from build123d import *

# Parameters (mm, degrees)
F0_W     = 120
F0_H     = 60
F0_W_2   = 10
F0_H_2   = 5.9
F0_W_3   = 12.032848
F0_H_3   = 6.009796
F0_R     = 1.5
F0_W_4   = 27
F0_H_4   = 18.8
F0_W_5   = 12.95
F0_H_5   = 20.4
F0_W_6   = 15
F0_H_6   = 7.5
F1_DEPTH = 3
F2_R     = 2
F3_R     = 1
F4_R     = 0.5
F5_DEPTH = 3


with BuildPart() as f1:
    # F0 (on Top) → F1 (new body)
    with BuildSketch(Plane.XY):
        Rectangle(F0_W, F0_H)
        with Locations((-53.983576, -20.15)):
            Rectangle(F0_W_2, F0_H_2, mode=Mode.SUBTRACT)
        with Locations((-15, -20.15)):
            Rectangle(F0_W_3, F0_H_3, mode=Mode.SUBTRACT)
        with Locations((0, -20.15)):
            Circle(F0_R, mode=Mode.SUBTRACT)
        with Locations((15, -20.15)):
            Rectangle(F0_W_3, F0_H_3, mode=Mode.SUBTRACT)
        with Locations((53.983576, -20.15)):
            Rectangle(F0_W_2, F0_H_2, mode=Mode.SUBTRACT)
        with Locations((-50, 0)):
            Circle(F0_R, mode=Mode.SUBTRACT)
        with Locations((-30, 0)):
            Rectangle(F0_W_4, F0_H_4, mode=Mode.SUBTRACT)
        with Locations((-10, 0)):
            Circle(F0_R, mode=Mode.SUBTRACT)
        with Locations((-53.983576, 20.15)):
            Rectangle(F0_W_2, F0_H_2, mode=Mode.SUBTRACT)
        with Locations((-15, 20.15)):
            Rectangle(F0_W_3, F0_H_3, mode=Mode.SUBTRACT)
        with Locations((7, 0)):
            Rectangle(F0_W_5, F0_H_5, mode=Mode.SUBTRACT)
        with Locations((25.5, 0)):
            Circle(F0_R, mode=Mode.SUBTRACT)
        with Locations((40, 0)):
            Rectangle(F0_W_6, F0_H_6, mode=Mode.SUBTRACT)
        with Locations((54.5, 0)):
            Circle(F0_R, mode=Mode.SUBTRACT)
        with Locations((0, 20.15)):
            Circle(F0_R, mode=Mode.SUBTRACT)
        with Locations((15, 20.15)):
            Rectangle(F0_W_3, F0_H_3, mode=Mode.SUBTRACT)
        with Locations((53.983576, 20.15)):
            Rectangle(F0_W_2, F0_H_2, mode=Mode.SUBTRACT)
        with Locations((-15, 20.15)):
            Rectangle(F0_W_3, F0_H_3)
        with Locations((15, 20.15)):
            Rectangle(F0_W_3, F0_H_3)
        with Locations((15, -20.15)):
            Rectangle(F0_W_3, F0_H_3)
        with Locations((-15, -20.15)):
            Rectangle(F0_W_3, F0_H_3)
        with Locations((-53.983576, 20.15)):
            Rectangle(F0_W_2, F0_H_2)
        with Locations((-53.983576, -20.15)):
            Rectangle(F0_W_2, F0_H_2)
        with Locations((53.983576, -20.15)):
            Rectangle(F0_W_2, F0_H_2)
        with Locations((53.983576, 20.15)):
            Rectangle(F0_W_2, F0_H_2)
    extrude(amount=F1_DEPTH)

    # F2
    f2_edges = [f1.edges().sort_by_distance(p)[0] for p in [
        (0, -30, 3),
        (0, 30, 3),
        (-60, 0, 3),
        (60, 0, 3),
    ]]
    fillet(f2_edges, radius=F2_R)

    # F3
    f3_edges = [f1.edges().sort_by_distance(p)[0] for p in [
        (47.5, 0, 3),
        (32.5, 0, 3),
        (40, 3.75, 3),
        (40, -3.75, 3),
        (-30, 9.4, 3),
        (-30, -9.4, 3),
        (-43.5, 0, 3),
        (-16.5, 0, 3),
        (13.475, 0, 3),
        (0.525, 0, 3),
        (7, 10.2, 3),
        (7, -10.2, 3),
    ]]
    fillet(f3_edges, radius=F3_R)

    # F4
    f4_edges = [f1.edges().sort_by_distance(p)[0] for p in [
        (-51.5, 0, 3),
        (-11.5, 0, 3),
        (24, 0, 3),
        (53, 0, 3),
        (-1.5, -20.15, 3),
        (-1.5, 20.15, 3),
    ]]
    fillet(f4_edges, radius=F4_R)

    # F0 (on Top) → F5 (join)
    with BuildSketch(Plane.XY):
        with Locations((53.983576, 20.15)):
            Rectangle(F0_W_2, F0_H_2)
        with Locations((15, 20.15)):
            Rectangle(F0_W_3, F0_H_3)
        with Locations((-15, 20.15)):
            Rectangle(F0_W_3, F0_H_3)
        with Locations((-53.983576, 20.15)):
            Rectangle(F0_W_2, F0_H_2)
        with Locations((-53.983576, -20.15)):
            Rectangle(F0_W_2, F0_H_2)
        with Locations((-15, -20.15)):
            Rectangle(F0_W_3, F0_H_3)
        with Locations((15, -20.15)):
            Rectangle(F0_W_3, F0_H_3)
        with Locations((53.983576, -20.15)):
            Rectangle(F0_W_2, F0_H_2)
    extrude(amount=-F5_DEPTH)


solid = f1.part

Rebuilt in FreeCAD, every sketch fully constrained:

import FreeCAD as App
import Part
import Sketcher

V = App.Vector
Q = App.Units.Quantity


def edges_at(feature, points):
    """Names of the edges that pass closest to the given points."""
    edges = feature.Shape.Edges
    near = lambda p: min(range(len(edges)), key=lambda i: edges[i].distToShape(Part.Vertex(*p))[0])
    return sorted({f"Edge{near(p) + 1}" for p in points})


def add_polygon(sketch, points):
    """Adds a closed chain of lines whose ends are joined by coincident constraints."""
    first, n = sketch.GeometryCount, len(points)
    for a, b in zip(points, points[1:] + points[:1]):
        sketch.addGeometry(Part.LineSegment(App.Vector(*a, 0), App.Vector(*b, 0)), False)
    for i in range(n):
        sketch.addConstraint(Sketcher.Constraint("Coincident", first + i, 2, first + (i + 1) % n, 1))

doc = App.newDocument("Part")
body = doc.addObject("PartDesign::Body", "Body")

# Sketch on XY plane
sketch1 = body.newObject("Sketcher::SketchObject", "Sketch")
sketch1.AttachmentSupport = (doc.getObject("XY_Plane"), [""])
sketch1.MapMode = "FlatFace"
add_polygon(sketch1, [(-60, 30), (-60, -30), (60, -30), (60, 30)])  # lines 0-3
sketch1.addGeometry(Part.Circle(V(0, -20.15, 0), V(0, 0, 1), 1.5), False)  # 4
sketch1.addGeometry(Part.Circle(V(-50, 0, 0), V(0, 0, 1), 1.5), False)  # 5
add_polygon(sketch1, [(-16.5, -9.4), (-43.5, -9.4), (-43.5, 9.4), (-16.5, 9.4)])  # lines 6-9
sketch1.addGeometry(Part.Circle(V(-10, 0, 0), V(0, 0, 1), 1.5), False)  # 10
add_polygon(sketch1, [(13.475, -10.2), (0.525, -10.2), (0.525, 10.2), (13.475, 10.2)])  # lines 11-14
sketch1.addGeometry(Part.Circle(V(25.5, 0, 0), V(0, 0, 1), 1.5), False)  # 15
add_polygon(sketch1, [(47.5, -3.75), (32.5, -3.75), (32.5, 3.75), (47.5, 3.75)])  # lines 16-19
sketch1.addGeometry(Part.Circle(V(54.5, 0, 0), V(0, 0, 1), 1.5), False)  # 20
sketch1.addGeometry(Part.Circle(V(0, 20.15, 0), V(0, 0, 1), 1.5), False)  # 21
sketch1.addConstraint([
    Sketcher.Constraint("Vertical", 0),
    Sketcher.Constraint("Horizontal", 1),
    Sketcher.Constraint("Vertical", 2),
    Sketcher.Constraint("Horizontal", 3),
    Sketcher.Constraint("Horizontal", 6),
    Sketcher.Constraint("Vertical", 7),
    Sketcher.Constraint("Horizontal", 8),
    Sketcher.Constraint("Vertical", 9),
    Sketcher.Constraint("Horizontal", 11),
    Sketcher.Constraint("Vertical", 12),
    Sketcher.Constraint("Horizontal", 13),
    Sketcher.Constraint("Vertical", 14),
    Sketcher.Constraint("Horizontal", 16),
    Sketcher.Constraint("Vertical", 17),
    Sketcher.Constraint("Horizontal", 18),
    Sketcher.Constraint("Vertical", 19),
    Sketcher.Constraint("Equal", 4, 5),
    Sketcher.Constraint("Equal", 5, 10),
    Sketcher.Constraint("Equal", 10, 15),
    Sketcher.Constraint("Equal", 15, 20),
    Sketcher.Constraint("Equal", 20, 21),
    Sketcher.Constraint("Symmetric", 4, 3, 21, 3, -1, 1),
    Sketcher.Constraint("Symmetric", 0, 2, 2, 2, -1, 1),
    Sketcher.Constraint("PointOnObject", 4, 3, -2),
    Sketcher.Constraint("PointOnObject", 5, 3, -1),
    Sketcher.Constraint("PointOnObject", 10, 3, -1),
    Sketcher.Constraint("PointOnObject", 15, 3, -1),
    Sketcher.Constraint("PointOnObject", 20, 3, -1),
    Sketcher.Constraint("Diameter", 4, Q("3 mm")),
    Sketcher.Constraint("DistanceX", 1, 1, 1, 2, Q("120 mm")),
    Sketcher.Constraint("DistanceX", 6, 2, 6, 1, Q("27 mm")),
    Sketcher.Constraint("DistanceX", 16, 2, 16, 1, Q("15 mm")),
    Sketcher.Constraint("DistanceY", 0, 2, 0, 1, Q("60 mm")),
    Sketcher.Constraint("DistanceY", 7, 1, 7, 2, Q("18.8 mm")),
    Sketcher.Constraint("DistanceY", 12, 1, 12, 2, Q("20.4 mm")),
    Sketcher.Constraint("DistanceY", 17, 1, 17, 2, Q("7.5 mm")),
    Sketcher.Constraint("DistanceX", 5, 3, -1, 1, Q("50 mm")),
    Sketcher.Constraint("DistanceX", 10, 3, -1, 1, Q("10 mm")),
    Sketcher.Constraint("DistanceX", 15, 3, 20, 3, Q("29 mm")),
    Sketcher.Constraint("DistanceX", 15, 3, 16, 2, Q("7 mm")),
    Sketcher.Constraint("DistanceX", 11, 2, 11, 1, Q("12.95 mm")),
    Sketcher.Constraint("DistanceX", -1, 1, 15, 3, Q("25.5 mm")),
    Sketcher.Constraint("DistanceX", 6, 2, -1, 1, Q("43.5 mm")),
    Sketcher.Constraint("DistanceY", 6, 2, -1, 1, Q("9.4 mm")),
    Sketcher.Constraint("DistanceY", 11, 2, -1, 1, Q("10.2 mm")),
    Sketcher.Constraint("DistanceY", 4, 3, 21, 3, Q("40.3 mm")),
    Sketcher.Constraint("DistanceY", 16, 2, -1, 1, Q("3.75 mm")),
    Sketcher.Constraint("DistanceX", -1, 1, 11, 2, Q("0.525 mm")),
])
pad1 = body.newObject("PartDesign::Pad", "Pad")
pad1.Profile = sketch1
pad1.Length = 3
doc.recompute()

fillet = body.newObject("PartDesign::Fillet", "Fillet")
fillet.Base = (pad1, edges_at(pad1, [
    (0, -30, 3),
    (0, 30, 3),
    (-60, 0, 3),
    (60, 0, 3),
]))
fillet.Radius = 2
doc.recompute()

fillet2 = body.newObject("PartDesign::Fillet", "Fillet001")
fillet2.Base = (fillet, edges_at(fillet, [
    (47.5, 0, 3),
    (32.5, 0, 3),
    (40, 3.75, 3),
    (40, -3.75, 3),
    (-30, 9.4, 3),
    (-30, -9.4, 3),
    (-43.5, 0, 3),
    (-16.5, 0, 3),
    (13.475, 0, 3),
    (0.525, 0, 3),
    (7, 10.2, 3),
    (7, -10.2, 3),
]))
fillet2.Radius = 1
doc.recompute()

fillet3 = body.newObject("PartDesign::Fillet", "Fillet002")
fillet3.Base = (fillet2, edges_at(fillet2, [
    (-51.5, 0, 3),
    (-11.5, 0, 3),
    (24, 0, 3),
    (53, 0, 3),
    (-1.5, -20.15, 3),
    (-1.5, 20.15, 3),
]))
fillet3.Radius = 0.5

# Sketch on XY plane
sketch2 = body.newObject("Sketcher::SketchObject", "Sketch001")
sketch2.AttachmentSupport = (doc.getObject("XY_Plane"), [""])
sketch2.MapMode = "FlatFace"
add_polygon(sketch2, [(48.983576, 23.1), (48.983576, 17.2), (58.983576, 17.2), (58.983576, 23.1)])  # lines 0-3
add_polygon(sketch2, [(8.983576, 23.154898), (8.983576, 17.145102), (21.016424, 17.145102), (21.016424, 23.154898)])  # lines 4-7
add_polygon(sketch2, [(-21.016424, 23.154898), (-21.016424, 17.145102), (-8.983576, 17.145102), (-8.983576, 23.154898)])  # lines 8-11
add_polygon(sketch2, [(-58.983576, 23.1), (-58.983576, 17.2), (-48.983576, 17.2), (-48.983576, 23.1)])  # lines 12-15
add_polygon(sketch2, [(-58.983576, -17.2), (-58.983576, -23.1), (-48.983576, -23.1), (-48.983576, -17.2)])  # lines 16-19
add_polygon(sketch2, [(-21.016424, -17.145102), (-21.016424, -23.154898), (-8.983576, -23.154898), (-8.983576, -17.145102)])  # lines 20-23
add_polygon(sketch2, [(8.983576, -17.145102), (8.983576, -23.154898), (21.016424, -23.154898), (21.016424, -17.145102)])  # lines 24-27
add_polygon(sketch2, [(48.983576, -17.2), (48.983576, -23.1), (58.983576, -23.1), (58.983576, -17.2)])  # lines 28-31
sketch2.addConstraint([
    Sketcher.Constraint("Vertical", 0),
    Sketcher.Constraint("Horizontal", 1),
    Sketcher.Constraint("Vertical", 2),
    Sketcher.Constraint("Horizontal", 3),
    Sketcher.Constraint("Vertical", 4),
    Sketcher.Constraint("Horizontal", 5),
    Sketcher.Constraint("Vertical", 6),
    Sketcher.Constraint("Horizontal", 7),
    Sketcher.Constraint("Vertical", 8),
    Sketcher.Constraint("Horizontal", 9),
    Sketcher.Constraint("Vertical", 10),
    Sketcher.Constraint("Horizontal", 11),
    Sketcher.Constraint("Vertical", 12),
    Sketcher.Constraint("Horizontal", 13),
    Sketcher.Constraint("Vertical", 14),
    Sketcher.Constraint("Horizontal", 15),
    Sketcher.Constraint("Vertical", 16),
    Sketcher.Constraint("Horizontal", 17),
    Sketcher.Constraint("Vertical", 18),
    Sketcher.Constraint("Horizontal", 19),
    Sketcher.Constraint("Vertical", 20),
    Sketcher.Constraint("Horizontal", 21),
    Sketcher.Constraint("Vertical", 22),
    Sketcher.Constraint("Horizontal", 23),
    Sketcher.Constraint("Vertical", 24),
    Sketcher.Constraint("Horizontal", 25),
    Sketcher.Constraint("Vertical", 26),
    Sketcher.Constraint("Horizontal", 27),
    Sketcher.Constraint("Vertical", 28),
    Sketcher.Constraint("Horizontal", 29),
    Sketcher.Constraint("Vertical", 30),
    Sketcher.Constraint("Horizontal", 31),
    Sketcher.Constraint("Symmetric", 2, 2, 16, 2, -1, 1),
    Sketcher.Constraint("Symmetric", 0, 2, 18, 2, -1, 1),
    Sketcher.Constraint("Symmetric", 6, 2, 20, 2, -1, 1),
    Sketcher.Constraint("Symmetric", 4, 2, 22, 2, -1, 1),
    Sketcher.Constraint("Symmetric", 10, 2, 24, 2, -1, 1),
    Sketcher.Constraint("Symmetric", 8, 2, 26, 2, -1, 1),
    Sketcher.Constraint("Symmetric", 14, 2, 28, 2, -1, 1),
    Sketcher.Constraint("Symmetric", 12, 2, 30, 2, -1, 1),
    Sketcher.Constraint("Symmetric", 5, 2, 8, 2, -2),
    Sketcher.Constraint("Symmetric", 7, 2, 10, 2, -2),
    Sketcher.Constraint("Symmetric", 1, 2, 12, 2, -2),
    Sketcher.Constraint("Symmetric", 3, 2, 14, 2, -2),
    Sketcher.Constraint("DistanceX", 1, 1, 1, 2, Q("10 mm")),
    Sketcher.Constraint("DistanceY", 0, 2, 0, 1, Q("5.9 mm")),
    Sketcher.Constraint("DistanceX", 4, 2, 0, 2, Q("40 mm")),
    Sketcher.Constraint("DistanceX", 8, 2, 4, 2, Q("30 mm")),
    Sketcher.Constraint("DistanceY", -1, 1, 0, 2, Q("17.2 mm")),
    Sketcher.Constraint("DistanceY", 20, 2, 8, 2, Q("40.3 mm")),
    Sketcher.Constraint("DistanceX", 5, 1, 5, 2, Q("12.032848 mm")),
    Sketcher.Constraint("DistanceY", 4, 2, 4, 1, Q("6.009796 mm")),
])
pad2 = body.newObject("PartDesign::Pad", "Pad001")
pad2.Profile = sketch2
pad2.Length = 3
pad2.Reversed = True

doc.recompute()
